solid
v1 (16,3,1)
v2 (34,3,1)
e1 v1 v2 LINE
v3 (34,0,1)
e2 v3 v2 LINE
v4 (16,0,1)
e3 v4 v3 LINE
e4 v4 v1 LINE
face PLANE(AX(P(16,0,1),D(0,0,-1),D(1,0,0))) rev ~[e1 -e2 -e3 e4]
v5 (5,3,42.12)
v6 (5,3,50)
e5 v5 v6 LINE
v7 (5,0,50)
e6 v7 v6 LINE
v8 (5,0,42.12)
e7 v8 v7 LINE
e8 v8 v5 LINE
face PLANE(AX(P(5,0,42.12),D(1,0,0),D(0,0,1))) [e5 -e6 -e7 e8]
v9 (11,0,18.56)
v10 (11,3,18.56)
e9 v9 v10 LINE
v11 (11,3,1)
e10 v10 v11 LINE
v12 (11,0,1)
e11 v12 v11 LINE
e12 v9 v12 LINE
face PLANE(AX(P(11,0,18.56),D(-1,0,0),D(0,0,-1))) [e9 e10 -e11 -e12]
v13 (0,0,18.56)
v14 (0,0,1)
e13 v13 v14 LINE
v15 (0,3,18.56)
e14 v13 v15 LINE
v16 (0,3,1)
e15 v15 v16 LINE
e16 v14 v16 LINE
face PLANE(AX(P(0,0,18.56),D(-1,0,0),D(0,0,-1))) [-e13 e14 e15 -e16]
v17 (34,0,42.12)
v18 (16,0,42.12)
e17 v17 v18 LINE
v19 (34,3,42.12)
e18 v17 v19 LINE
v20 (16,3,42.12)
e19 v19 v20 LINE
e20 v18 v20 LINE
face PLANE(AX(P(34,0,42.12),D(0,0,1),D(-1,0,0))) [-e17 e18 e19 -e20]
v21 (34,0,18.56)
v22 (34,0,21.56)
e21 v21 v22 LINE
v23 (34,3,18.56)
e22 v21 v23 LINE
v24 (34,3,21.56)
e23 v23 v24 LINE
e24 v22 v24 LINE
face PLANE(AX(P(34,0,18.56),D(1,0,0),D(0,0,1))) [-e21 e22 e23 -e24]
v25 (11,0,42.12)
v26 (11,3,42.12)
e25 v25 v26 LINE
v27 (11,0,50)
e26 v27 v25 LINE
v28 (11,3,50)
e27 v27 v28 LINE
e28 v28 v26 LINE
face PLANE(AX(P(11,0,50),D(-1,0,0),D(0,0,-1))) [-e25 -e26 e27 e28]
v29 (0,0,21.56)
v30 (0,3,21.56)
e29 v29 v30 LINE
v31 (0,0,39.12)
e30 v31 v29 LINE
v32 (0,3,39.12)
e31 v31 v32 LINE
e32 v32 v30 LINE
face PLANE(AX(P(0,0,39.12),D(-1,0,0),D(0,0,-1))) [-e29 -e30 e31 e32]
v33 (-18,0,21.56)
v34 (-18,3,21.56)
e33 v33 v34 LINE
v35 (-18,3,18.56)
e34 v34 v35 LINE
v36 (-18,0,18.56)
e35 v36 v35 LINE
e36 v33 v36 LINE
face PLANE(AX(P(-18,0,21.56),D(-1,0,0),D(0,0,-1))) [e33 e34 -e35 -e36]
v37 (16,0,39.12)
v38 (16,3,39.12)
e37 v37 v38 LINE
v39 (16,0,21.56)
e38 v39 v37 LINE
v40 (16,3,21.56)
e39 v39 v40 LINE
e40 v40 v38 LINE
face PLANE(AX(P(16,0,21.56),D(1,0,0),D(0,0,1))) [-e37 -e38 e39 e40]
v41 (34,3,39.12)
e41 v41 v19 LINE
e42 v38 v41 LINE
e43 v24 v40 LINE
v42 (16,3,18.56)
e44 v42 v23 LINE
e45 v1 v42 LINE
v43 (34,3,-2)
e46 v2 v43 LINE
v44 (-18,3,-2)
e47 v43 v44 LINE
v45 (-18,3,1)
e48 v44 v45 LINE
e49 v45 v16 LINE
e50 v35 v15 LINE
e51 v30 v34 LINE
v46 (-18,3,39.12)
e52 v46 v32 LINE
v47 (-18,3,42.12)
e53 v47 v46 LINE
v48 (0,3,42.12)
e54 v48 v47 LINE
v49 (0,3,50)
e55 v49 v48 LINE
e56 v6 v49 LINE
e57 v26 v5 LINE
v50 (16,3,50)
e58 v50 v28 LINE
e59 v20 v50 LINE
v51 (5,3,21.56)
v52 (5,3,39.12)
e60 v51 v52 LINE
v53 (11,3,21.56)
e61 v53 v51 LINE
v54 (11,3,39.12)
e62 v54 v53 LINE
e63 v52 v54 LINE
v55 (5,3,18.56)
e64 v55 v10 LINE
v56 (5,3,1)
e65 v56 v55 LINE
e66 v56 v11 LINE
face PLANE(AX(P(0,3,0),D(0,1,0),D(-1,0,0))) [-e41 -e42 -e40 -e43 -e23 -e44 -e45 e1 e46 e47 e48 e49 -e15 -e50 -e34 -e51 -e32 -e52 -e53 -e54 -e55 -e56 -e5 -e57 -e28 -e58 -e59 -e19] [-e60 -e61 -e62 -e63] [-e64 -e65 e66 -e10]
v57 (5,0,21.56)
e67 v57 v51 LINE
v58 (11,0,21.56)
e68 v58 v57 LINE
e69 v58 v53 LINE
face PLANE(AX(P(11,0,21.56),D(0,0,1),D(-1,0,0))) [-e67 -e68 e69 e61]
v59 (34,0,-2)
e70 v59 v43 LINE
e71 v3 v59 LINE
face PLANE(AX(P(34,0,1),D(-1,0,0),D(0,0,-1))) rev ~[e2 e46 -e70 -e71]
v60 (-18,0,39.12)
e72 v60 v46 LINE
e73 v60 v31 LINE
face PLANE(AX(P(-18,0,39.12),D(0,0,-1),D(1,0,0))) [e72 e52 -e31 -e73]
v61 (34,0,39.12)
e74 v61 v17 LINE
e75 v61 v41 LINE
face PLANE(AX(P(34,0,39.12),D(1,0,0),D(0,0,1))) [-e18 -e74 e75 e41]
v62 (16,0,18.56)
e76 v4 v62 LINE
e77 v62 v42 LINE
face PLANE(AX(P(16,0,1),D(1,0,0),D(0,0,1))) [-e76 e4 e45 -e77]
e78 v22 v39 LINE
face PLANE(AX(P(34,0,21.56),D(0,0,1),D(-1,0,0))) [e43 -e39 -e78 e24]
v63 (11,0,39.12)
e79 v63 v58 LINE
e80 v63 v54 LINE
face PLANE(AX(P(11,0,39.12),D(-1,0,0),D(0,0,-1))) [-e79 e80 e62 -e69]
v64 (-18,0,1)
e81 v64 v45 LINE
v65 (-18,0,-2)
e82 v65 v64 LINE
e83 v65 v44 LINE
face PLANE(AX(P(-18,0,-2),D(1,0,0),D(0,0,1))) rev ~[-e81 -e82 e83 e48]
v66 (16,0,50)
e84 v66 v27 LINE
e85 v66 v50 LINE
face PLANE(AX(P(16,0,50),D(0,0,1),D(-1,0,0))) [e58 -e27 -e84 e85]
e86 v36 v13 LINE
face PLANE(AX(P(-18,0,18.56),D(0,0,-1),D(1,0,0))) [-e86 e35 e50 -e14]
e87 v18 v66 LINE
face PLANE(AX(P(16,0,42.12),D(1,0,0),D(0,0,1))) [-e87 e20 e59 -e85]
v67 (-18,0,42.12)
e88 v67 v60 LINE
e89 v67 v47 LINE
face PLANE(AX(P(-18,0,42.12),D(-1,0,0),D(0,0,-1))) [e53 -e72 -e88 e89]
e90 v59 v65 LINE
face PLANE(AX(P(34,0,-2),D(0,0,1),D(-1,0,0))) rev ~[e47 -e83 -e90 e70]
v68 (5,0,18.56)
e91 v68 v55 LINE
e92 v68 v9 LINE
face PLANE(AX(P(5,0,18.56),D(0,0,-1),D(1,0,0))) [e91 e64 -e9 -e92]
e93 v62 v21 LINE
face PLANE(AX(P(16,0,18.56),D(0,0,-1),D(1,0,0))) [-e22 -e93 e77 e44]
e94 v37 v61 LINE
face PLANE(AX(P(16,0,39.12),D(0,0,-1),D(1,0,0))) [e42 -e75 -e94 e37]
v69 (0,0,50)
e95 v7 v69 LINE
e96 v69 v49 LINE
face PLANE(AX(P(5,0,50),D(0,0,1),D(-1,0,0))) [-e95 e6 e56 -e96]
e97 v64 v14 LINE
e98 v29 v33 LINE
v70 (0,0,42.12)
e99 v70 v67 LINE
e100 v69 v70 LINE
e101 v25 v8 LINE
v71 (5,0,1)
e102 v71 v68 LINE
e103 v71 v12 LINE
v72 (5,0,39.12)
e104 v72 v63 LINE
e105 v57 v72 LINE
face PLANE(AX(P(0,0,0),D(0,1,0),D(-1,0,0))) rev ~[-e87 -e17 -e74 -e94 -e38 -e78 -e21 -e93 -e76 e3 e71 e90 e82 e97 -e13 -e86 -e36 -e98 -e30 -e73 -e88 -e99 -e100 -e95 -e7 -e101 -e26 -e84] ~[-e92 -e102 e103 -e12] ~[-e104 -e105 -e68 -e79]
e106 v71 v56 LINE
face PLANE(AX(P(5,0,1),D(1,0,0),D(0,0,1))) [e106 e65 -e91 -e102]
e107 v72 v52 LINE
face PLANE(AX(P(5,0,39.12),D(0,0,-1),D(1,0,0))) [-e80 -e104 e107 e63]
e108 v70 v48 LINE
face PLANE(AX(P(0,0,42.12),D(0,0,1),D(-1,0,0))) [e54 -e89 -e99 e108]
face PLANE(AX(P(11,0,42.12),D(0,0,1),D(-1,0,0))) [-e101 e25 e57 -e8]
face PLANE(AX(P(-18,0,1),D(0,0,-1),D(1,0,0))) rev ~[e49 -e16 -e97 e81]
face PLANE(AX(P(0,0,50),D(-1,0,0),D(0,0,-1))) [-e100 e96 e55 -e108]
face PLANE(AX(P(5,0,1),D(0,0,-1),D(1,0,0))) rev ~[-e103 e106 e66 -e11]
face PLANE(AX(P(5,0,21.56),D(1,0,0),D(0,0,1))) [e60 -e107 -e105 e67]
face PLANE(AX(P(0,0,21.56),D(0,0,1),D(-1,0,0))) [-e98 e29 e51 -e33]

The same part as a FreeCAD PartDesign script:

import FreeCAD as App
import Part
import Sketcher

V = App.Vector
Q = App.Units.Quantity


def add_polygon(sketch, points):
    """Adds a closed chain of lines whose ends are joined by coincident constraints."""
    first, n = sketch.GeometryCount, len(points)
    for a, b in zip(points, points[1:] + points[:1]):
        sketch.addGeometry(Part.LineSegment(App.Vector(*a, 0), App.Vector(*b, 0)), False)
    for i in range(n):
        sketch.addConstraint(Sketcher.Constraint("Coincident", first + i, 2, first + (i + 1) % n, 1))

doc = App.newDocument("Part")
body = doc.addObject("PartDesign::Body", "Body")

# Sketch on XZ plane
sketch1 = body.newObject("Sketcher::SketchObject", "Sketch")
sketch1.AttachmentSupport = (doc.getObject("XZ_Plane"), [""])
sketch1.MapMode = "FlatFace"
add_polygon(sketch1, [(-18, 1), (0, 1), (0, 18.56), (-18, 18.56), (-18, 21.56), (0, 21.56), (0, 39.12), (-18, 39.12), (-18, 42.12), (0, 42.12), (0, 50), (5, 50), (5, 42.12), (11, 42.12), (11, 50), (16, 50), (16, 42.12), (34, 42.12), (34, 39.12), (16, 39.12), (16, 21.56), (34, 21.56), (34, 18.56), (16, 18.56), (16, 1), (34, 1), (34, -2), (-18, -2)])  # lines 0-27
add_polygon(sketch1, [(5, 1), (11, 1), (11, 18.56), (5, 18.56)])  # lines 28-31
add_polygon(sketch1, [(5, 21.56), (11, 21.56), (11, 39.12), (5, 39.12)])  # lines 32-35
sketch1.addConstraint([
    Sketcher.Constraint("Horizontal", 0),
    Sketcher.Constraint("Vertical", 1),
    Sketcher.Constraint("Horizontal", 2),
    Sketcher.Constraint("Vertical", 3),
    Sketcher.Constraint("Horizontal", 4),
    Sketcher.Constraint("Vertical", 5),
    Sketcher.Constraint("Horizontal", 6),
    Sketcher.Constraint("Vertical", 7),
    Sketcher.Constraint("Horizontal", 8),
    Sketcher.Constraint("Vertical", 9),
    Sketcher.Constraint("Horizontal", 10),
    Sketcher.Constraint("Vertical", 11),
    Sketcher.Constraint("Horizontal", 12),
    Sketcher.Constraint("Vertical", 13),
    Sketcher.Constraint("Horizontal", 14),
    Sketcher.Constraint("Vertical", 15),
    Sketcher.Constraint("Horizontal", 16),
    Sketcher.Constraint("Vertical", 17),
    Sketcher.Constraint("Horizontal", 18),
    Sketcher.Constraint("Vertical", 19),
    Sketcher.Constraint("Horizontal", 20),
    Sketcher.Constraint("Vertical", 21),
    Sketcher.Constraint("Horizontal", 22),
    Sketcher.Constraint("Vertical", 23),
    Sketcher.Constraint("Horizontal", 24),
    Sketcher.Constraint("Vertical", 25),
    Sketcher.Constraint("Horizontal", 26),
    Sketcher.Constraint("Vertical", 27),
    Sketcher.Constraint("Horizontal", 28),
    Sketcher.Constraint("Vertical", 29),
    Sketcher.Constraint("Horizontal", 30),
    Sketcher.Constraint("Vertical", 31),
    Sketcher.Constraint("Horizontal", 32),
    Sketcher.Constraint("Vertical", 33),
    Sketcher.Constraint("Horizontal", 34),
    Sketcher.Constraint("Vertical", 35),
    Sketcher.Constraint("PointOnObject", 0, 2, -2),
    Sketcher.Constraint("PointOnObject", 4, 2, -2),
    Sketcher.Constraint("PointOnObject", 8, 2, -2),
    Sketcher.Constraint("Horizontal", 8, 2, 11, 2),
    Sketcher.Constraint("Horizontal", 10, 2, 13, 2),
    Sketcher.Constraint("Horizontal", 12, 2, 15, 2),
    Sketcher.Constraint("Horizontal", 6, 2, 17, 2),
    Sketcher.Constraint("Horizontal", 4, 2, 19, 2),
    Sketcher.Constraint("Horizontal", 2, 2, 21, 2),
    Sketcher.Constraint("Horizontal", 0, 2, 23, 2),
    Sketcher.Constraint("Horizontal", 27, 2, 28, 2),
    Sketcher.Constraint("Horizontal", 22, 2, 29, 2),
    Sketcher.Constraint("Horizontal", 20, 2, 32, 2),
    Sketcher.Constraint("Horizontal", 18, 2, 33, 2),
    Sketcher.Constraint("Vertical", 3, 2, 6, 2),
    Sketcher.Constraint("Vertical", 15, 2, 18, 2),
    Sketcher.Constraint("Vertical", 17, 2, 20, 2),
    Sketcher.Constraint("Vertical", 19, 2, 22, 2),
    Sketcher.Constraint("Vertical", 21, 2, 24, 2),
    Sketcher.Constraint("Vertical", 7, 2, 26, 2),
    Sketcher.Constraint("Vertical", 13, 2, 28, 2),
    Sketcher.Constraint("Vertical", 11, 2, 30, 2),
    Sketcher.Constraint("Vertical", 29, 2, 32, 2),
    Sketcher.Constraint("Vertical", 31, 2, 34, 2),
    Sketcher.Constraint("Equal", 10, 14),
    Sketcher.Constraint("Equal", 8, 16),
    Sketcher.Constraint("Equal", 1, 5),
    Sketcher.Constraint("Equal", 3, 7),
    Sketcher.Constraint("Equal", 21, 25),
    Sketcher.Constraint("DistanceX", 10, 1, 10, 2, Q("5 mm")),
    Sketcher.Constraint("DistanceX", 26, 2, 26, 1, Q("52 mm")),
    Sketcher.Constraint("DistanceY", 3, 1, 3, 2, Q("3 mm")),
    Sketcher.Constraint("DistanceY", -1, 1, 0, 2, Q("1 mm")),
    Sketcher.Constraint("DistanceY", -1, 1, 9, 2, Q("50 mm")),
    Sketcher.Constraint("DistanceX", -1, 1, 14, 2, Q("16 mm")),
    Sketcher.Constraint("DistanceY", 0, 2, 3, 2, Q("20.56 mm")),
])
pad1 = body.newObject("PartDesign::Pad", "Pad")
pad1.Profile = sketch1
pad1.Length = 3
pad1.Reversed = True

doc.recompute()
